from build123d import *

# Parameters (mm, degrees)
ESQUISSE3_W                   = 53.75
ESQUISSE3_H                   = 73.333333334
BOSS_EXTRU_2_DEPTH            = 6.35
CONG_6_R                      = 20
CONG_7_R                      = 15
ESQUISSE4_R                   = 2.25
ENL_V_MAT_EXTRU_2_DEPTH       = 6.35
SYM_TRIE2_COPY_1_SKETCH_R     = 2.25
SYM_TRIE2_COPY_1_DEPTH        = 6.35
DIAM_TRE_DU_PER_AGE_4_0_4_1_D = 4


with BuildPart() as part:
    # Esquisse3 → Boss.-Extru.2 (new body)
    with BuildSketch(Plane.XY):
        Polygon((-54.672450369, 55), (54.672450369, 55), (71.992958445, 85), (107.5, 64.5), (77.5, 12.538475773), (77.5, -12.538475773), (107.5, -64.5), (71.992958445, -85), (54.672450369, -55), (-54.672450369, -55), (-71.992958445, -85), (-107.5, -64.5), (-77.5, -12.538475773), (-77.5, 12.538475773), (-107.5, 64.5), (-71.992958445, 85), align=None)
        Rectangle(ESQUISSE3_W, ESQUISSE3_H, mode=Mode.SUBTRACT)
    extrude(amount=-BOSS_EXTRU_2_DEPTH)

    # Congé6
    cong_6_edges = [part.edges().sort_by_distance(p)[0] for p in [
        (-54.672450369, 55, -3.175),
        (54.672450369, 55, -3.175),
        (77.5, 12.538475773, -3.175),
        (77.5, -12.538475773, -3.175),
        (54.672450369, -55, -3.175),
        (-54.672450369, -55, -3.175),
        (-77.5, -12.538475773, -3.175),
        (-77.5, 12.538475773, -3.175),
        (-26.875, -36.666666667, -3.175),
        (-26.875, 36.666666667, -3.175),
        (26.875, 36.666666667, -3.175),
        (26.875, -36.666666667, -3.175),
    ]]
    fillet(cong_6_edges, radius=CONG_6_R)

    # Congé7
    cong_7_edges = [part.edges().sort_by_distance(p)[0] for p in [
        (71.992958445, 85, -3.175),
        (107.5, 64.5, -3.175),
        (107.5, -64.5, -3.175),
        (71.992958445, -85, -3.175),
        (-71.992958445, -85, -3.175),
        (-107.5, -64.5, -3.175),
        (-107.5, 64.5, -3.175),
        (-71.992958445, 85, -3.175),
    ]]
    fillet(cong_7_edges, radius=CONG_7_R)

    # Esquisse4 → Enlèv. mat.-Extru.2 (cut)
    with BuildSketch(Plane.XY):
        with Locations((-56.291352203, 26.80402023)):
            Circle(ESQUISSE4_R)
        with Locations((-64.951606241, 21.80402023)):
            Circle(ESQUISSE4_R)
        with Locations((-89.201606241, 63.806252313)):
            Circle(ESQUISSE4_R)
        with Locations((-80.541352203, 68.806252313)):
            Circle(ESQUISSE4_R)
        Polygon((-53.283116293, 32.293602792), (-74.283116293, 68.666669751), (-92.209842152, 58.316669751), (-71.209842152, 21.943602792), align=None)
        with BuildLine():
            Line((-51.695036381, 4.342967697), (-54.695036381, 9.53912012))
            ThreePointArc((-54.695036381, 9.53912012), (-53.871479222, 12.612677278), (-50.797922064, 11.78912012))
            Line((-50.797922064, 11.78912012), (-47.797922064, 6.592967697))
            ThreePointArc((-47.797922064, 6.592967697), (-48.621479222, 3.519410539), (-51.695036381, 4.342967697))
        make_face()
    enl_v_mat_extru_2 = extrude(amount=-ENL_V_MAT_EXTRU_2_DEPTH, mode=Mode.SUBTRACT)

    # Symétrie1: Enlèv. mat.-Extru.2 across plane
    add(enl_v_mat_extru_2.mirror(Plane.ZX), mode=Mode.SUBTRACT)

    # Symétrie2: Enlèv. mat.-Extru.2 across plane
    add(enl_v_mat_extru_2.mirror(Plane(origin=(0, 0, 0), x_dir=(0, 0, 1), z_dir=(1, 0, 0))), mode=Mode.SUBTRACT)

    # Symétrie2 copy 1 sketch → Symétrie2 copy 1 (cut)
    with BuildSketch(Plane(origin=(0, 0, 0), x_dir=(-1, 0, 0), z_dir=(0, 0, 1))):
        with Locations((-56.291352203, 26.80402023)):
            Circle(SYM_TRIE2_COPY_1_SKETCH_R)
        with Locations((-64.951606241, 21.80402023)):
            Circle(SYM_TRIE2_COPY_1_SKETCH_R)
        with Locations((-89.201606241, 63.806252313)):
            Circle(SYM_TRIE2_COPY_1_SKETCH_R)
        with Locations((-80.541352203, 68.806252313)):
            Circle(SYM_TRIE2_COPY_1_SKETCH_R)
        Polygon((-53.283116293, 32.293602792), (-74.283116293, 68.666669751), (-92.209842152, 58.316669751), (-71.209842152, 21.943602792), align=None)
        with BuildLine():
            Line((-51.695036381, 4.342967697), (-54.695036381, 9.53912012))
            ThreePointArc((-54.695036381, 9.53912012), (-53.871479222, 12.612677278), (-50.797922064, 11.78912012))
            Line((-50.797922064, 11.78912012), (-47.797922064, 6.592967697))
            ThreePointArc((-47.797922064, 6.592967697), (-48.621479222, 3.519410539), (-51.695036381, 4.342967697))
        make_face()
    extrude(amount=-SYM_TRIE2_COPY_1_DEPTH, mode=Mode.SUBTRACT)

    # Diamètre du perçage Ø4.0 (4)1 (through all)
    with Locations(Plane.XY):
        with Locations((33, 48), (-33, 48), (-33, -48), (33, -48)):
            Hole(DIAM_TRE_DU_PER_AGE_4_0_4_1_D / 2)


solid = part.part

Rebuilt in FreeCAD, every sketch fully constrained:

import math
import FreeCAD as App
import Part
import Sketcher

V = App.Vector
Q = App.Units.Quantity


def edges_at(feature, points):
    """Names of the edges that pass closest to the given points."""
    edges = feature.Shape.Edges
    near = lambda p: min(range(len(edges)), key=lambda i: edges[i].distToShape(Part.Vertex(*p))[0])
    return sorted({f"Edge{near(p) + 1}" for p in points})

doc = App.newDocument("Part")
body = doc.addObject("PartDesign::Body", "Body")

# Sketch on XY plane
sketch1 = body.newObject("Sketcher::SketchObject", "Sketch")
sketch1.AttachmentSupport = (doc.getObject("XY_Plane"), [""])
sketch1.MapMode = "FlatFace"
sketch1.addGeometry([
    Part.LineSegment(V(55, 55, 0), V(-55, 55, 0)),  # 0
    Part.LineSegment(V(-55, 55, 0), V(-72, 85, 0)),  # 1
    Part.LineSegment(V(-72, 85, 0), V(-108, 64, 0)),  # 2
    Part.LineSegment(V(-108, 64, 0), V(-78, 13, 0)),  # 3
    Part.LineSegment(V(-78, 13, 0), V(-78, -13, 0)),  # 4
    Part.LineSegment(V(-78, -13, 0), V(-108, -64, 0)),  # 5
    Part.LineSegment(V(-108, -64, 0), V(-72, -85, 0)),  # 6
    Part.LineSegment(V(-72, -85, 0), V(-55, -55, 0)),  # 7
    Part.LineSegment(V(-55, -55, 0), V(55, -55, 0)),  # 8
    Part.LineSegment(V(55, -55, 0), V(72, -85, 0)),  # 9
    Part.LineSegment(V(72, -85, 0), V(108, -64, 0)),  # 10
    Part.LineSegment(V(108, -64, 0), V(78, -13, 0)),  # 11
    Part.LineSegment(V(78, -13, 0), V(78, 13, 0)),  # 12
    Part.LineSegment(V(78, 13, 0), V(108, 64, 0)),  # 13
    Part.LineSegment(V(108, 64, 0), V(72, 85, 0)),  # 14
    Part.LineSegment(V(72, 85, 0), V(55, 55, 0)),  # 15
    Part.LineSegment(V(-27, -37, 0), V(-27, 37, 0)),  # 16
    Part.LineSegment(V(-27, 37, 0), V(27, 37, 0)),  # 17
    Part.LineSegment(V(27, 37, 0), V(27, -37, 0)),  # 18
    Part.LineSegment(V(27, -37, 0), V(-27, -37, 0)),  # 19
], False)
sketch1.addConstraint([
    Sketcher.Constraint("Coincident", 0, 2, 1, 1),
    Sketcher.Constraint("Coincident", 1, 2, 2, 1),
    Sketcher.Constraint("Coincident", 2, 2, 3, 1),
    Sketcher.Constraint("Coincident", 3, 2, 4, 1),
    Sketcher.Constraint("Coincident", 4, 2, 5, 1),
    Sketcher.Constraint("Coincident", 5, 2, 6, 1),
    Sketcher.Constraint("Coincident", 6, 2, 7, 1),
    Sketcher.Constraint("Coincident", 7, 2, 8, 1),
    Sketcher.Constraint("Coincident", 8, 2, 9, 1),
    Sketcher.Constraint("Coincident", 9, 2, 10, 1),
    Sketcher.Constraint("Coincident", 10, 2, 11, 1),
    Sketcher.Constraint("Coincident", 11, 2, 12, 1),
    Sketcher.Constraint("Coincident", 12, 2, 13, 1),
    Sketcher.Constraint("Coincident", 13, 2, 14, 1),
    Sketcher.Constraint("Coincident", 14, 2, 15, 1),
    Sketcher.Constraint("Coincident", 15, 2, 0, 1),
    Sketcher.Constraint("Coincident", 16, 2, 17, 1),
    Sketcher.Constraint("Coincident", 17, 2, 18, 1),
    Sketcher.Constraint("Coincident", 18, 2, 19, 1),
    Sketcher.Constraint("Coincident", 19, 2, 16, 1),
    Sketcher.Constraint("Horizontal", 0),
    Sketcher.Constraint("Vertical", 4),
    Sketcher.Constraint("Horizontal", 8),
    Sketcher.Constraint("Vertical", 12),
    Sketcher.Constraint("Vertical", 16),
    Sketcher.Constraint("Horizontal", 17),
    Sketcher.Constraint("Vertical", 18),
    Sketcher.Constraint("Horizontal", 19),
    Sketcher.Constraint("Symmetric", 0, 2, 8, 2, -1, 1),
    Sketcher.Constraint("Symmetric", 1, 2, 9, 2, -1, 1),
    Sketcher.Constraint("Symmetric", 2, 2, 10, 2, -1, 1),
    Sketcher.Constraint("Symmetric", 3, 2, 11, 2, -1, 1),
    Sketcher.Constraint("Symmetric", 5, 2, 13, 2, -1, 1),
    Sketcher.Constraint("Symmetric", 6, 2, 14, 2, -1, 1),
    Sketcher.Constraint("Symmetric", 16, 2, 18, 2, -1, 1),
    Sketcher.Constraint("Symmetric", 6, 2, 9, 2, -2),
    Sketcher.Constraint("Symmetric", 5, 2, 10, 2, -2),
    Sketcher.Constraint("Perpendicular", 1, 2),
    Sketcher.Constraint("Perpendicular", 2, 3),
    Sketcher.Constraint("Perpendicular", 5, 6),
    Sketcher.Constraint("Perpendicular", 6, 7),
    Sketcher.Constraint("Parallel", 7, 13),
    Sketcher.Constraint("Perpendicular", 14, 15),
    Sketcher.Constraint("Angle", 1, Q("120 deg")),
    Sketcher.Constraint("Distance", 2, 41.0),
    Sketcher.Constraint("Distance", 3, 60.0),
    Sketcher.Constraint("DistanceY", -1, 1, 0, 2, 55.0),
    Sketcher.Constraint("DistanceY", -1, 1, 1, 2, 85.0),
    Sketcher.Constraint("DistanceX", 4, 2, 10, 2, 185.0),
    Sketcher.Constraint("DistanceX", 17, 1, 17, 2, 53.75),
    Sketcher.Constraint("DistanceY", 16, 1, 16, 2, 73.333333),
])
pad1 = body.newObject("PartDesign::Pad", "Pad")
pad1.Profile = sketch1
pad1.Length = 6.35
pad1.Reversed = True
doc.recompute()

fillet = body.newObject("PartDesign::Fillet", "Fillet")
fillet.Base = (pad1, edges_at(pad1, [
    (-54.672, 55, -3.175),
    (54.672, 55, -3.175),
    (77.5, 12.538, -3.175),
    (77.5, -12.538, -3.175),
    (54.672, -55, -3.175),
    (-54.672, -55, -3.175),
    (-77.5, -12.538, -3.175),
    (-77.5, 12.538, -3.175),
    (-26.875, -36.667, -3.175),
    (-26.875, 36.667, -3.175),
    (26.875, 36.667, -3.175),
    (26.875, -36.667, -3.175),
]))
fillet.Radius = 20
doc.recompute()

fillet2 = body.newObject("PartDesign::Fillet", "Fillet001")
fillet2.Base = (fillet, edges_at(fillet, [
    (71.993, 85, -3.175),
    (107.5, 64.5, -3.175),
    (107.5, -64.5, -3.175),
    (71.993, -85, -3.175),
    (-71.993, -85, -3.175),
    (-107.5, -64.5, -3.175),
    (-107.5, 64.5, -3.175),
    (-71.993, 85, -3.175),
]))
fillet2.Radius = 15

# Sketch on XY plane
sketch2 = body.newObject("Sketcher::SketchObject", "Sketch001")
sketch2.AttachmentSupport = (doc.getObject("XY_Plane"), [""])
sketch2.MapMode = "FlatFace"
sketch2.addGeometry([
    Part.Circle(V(-56.3, 26.8, 0), V(0, 0, 1), 2.2),  # 0
    Part.Circle(V(-65, 21.8, 0), V(0, 0, 1), 2.2),  # 1
    Part.Circle(V(-89.2, 63.8, 0), V(0, 0, 1), 2.2),  # 2
    Part.Circle(V(-80.5, 68.8, 0), V(0, 0, 1), 2.2),  # 3
    Part.LineSegment(V(-53.3, 32.3, 0), V(-74.3, 68.7, 0)),  # 4
    Part.LineSegment(V(-74.3, 68.7, 0), V(-92.2, 58.3, 0)),  # 5
    Part.LineSegment(V(-92.2, 58.3, 0), V(-71.2, 21.9, 0)),  # 6
    Part.LineSegment(V(-71.2, 21.9, 0), V(-53.3, 32.3, 0)),  # 7
    Part.LineSegment(V(-54.7, 9.5, 0), V(-51.7, 4.3, 0)),  # 8
    Part.ArcOfCircle(Part.Circle(V(-49.7, 5.5, 0), V(0, 0, 1), 2.2), math.radians(-150), math.radians(30)),  # 9
    Part.LineSegment(V(-47.8, 6.6, 0), V(-50.8, 11.8, 0)),  # 10
    Part.ArcOfCircle(Part.Circle(V(-52.7, 10.7, 0), V(0, 0, 1), 2.2), math.radians(30), math.radians(210)),  # 11
], False)
sketch2.addConstraint([
    Sketcher.Constraint("Coincident", 4, 2, 5, 1),
    Sketcher.Constraint("Coincident", 5, 2, 6, 1),
    Sketcher.Constraint("Coincident", 6, 2, 7, 1),
    Sketcher.Constraint("Coincident", 7, 2, 4, 1),
    Sketcher.Constraint("Tangent", 8, 2, 9, 1),
    Sketcher.Constraint("Tangent", 9, 2, 10, 1),
    Sketcher.Constraint("Tangent", 10, 2, 11, 1),
    Sketcher.Constraint("Tangent", 11, 2, 8, 1),
    Sketcher.Constraint("Equal", 0, 1),
    Sketcher.Constraint("Equal", 1, 2),
    Sketcher.Constraint("Equal", 2, 3),
    Sketcher.Constraint("Equal", 3, 9),
    Sketcher.Constraint("Equal", 9, 11),
    Sketcher.Constraint("Perpendicular", 4, 5),
    Sketcher.Constraint("Perpendicular", 5, 6),
    Sketcher.Constraint("Perpendicular", 6, 7),
    Sketcher.Constraint("Perpendicular", 7, 8),
    Sketcher.Constraint("Diameter", 0, 4.5),
    Sketcher.Constraint("Angle", 4, Q("120 deg")),
    Sketcher.Constraint("Distance", 4, 42.0),
    Sketcher.Constraint("Distance", 8, 6.0),
    Sketcher.Constraint("DistanceY", 1, 3, 0, 3, 5.0),
    Sketcher.Constraint("DistanceY", 2, 3, 3, 3, 5.0),
    Sketcher.Constraint("Distance", 5, 20.7),
    Sketcher.Constraint("DistanceX", 2, 3, 1, 3, 24.25),
    Sketcher.Constraint("DistanceX", 3, 3, 0, 3, 24.25),
    Sketcher.Constraint("DistanceY", 11, 3, 1, 3, 11.1399),
    Sketcher.Constraint("DistanceY", -1, 1, 0, 3, 26.80402),
    Sketcher.Constraint("DistanceX", 9, 3, -1, 1, 49.746479),
    Sketcher.Constraint("DistanceY", -1, 1, 4, 2, 68.66667),
    Sketcher.Constraint("DistanceX", 2, 3, 4, 2, 14.91849),
    Sketcher.Constraint("DistanceX", 5, 2, 3, 3, 11.66849),
    Sketcher.Constraint("DistanceX", 1, 3, 8, 2, 13.25657),
    Sketcher.Constraint("DistanceY", -1, 1, 2, 3, 63.806252),
])
pocket1 = body.newObject("PartDesign::Pocket", "Pocket")
pocket1.Profile = sketch2
pocket1.Length = 6.35
doc.recompute()

mirrored = body.newObject("PartDesign::Mirrored", "Mirrored")
mirrored.Originals = [pocket1]
mirrored.MirrorPlane = (doc.getObject("XZ_Plane"), [""])
body.Tip = mirrored
doc.recompute()

mirrored2 = body.newObject("PartDesign::Mirrored", "Mirrored001")
mirrored2.Originals = [pocket1]
mirrored2.MirrorPlane = (doc.getObject("YZ_Plane"), [""])
body.Tip = mirrored2

# Sketch on XY plane
sketch3 = body.newObject("Sketcher::SketchObject", "Sketch002")
sketch3.AttachmentSupport = (doc.getObject("XY_Plane"), [""])
sketch3.MapMode = "FlatFace"
sketch3.addGeometry([
    Part.Circle(V(56.3, -26.8, 0), V(0, 0, 1), 2.2),  # 0
    Part.Circle(V(65, -21.8, 0), V(0, 0, 1), 2.2),  # 1
    Part.Circle(V(89.2, -63.8, 0), V(0, 0, 1), 2.2),  # 2
    Part.Circle(V(80.5, -68.8, 0), V(0, 0, 1), 2.2),  # 3
    Part.LineSegment(V(53.3, -32.3, 0), V(74.3, -68.7, 0)),  # 4
    Part.LineSegment(V(74.3, -68.7, 0), V(92.2, -58.3, 0)),  # 5
    Part.LineSegment(V(92.2, -58.3, 0), V(71.2, -21.9, 0)),  # 6
    Part.LineSegment(V(71.2, -21.9, 0), V(53.3, -32.3, 0)),  # 7
    Part.LineSegment(V(54.7, -9.5, 0), V(51.7, -4.3, 0)),  # 8
    Part.ArcOfCircle(Part.Circle(V(49.7, -5.5, 0), V(0, 0, 1), 2.2), math.radians(30), math.radians(210)),  # 9
    Part.LineSegment(V(47.8, -6.6, 0), V(50.8, -11.8, 0)),  # 10
    Part.ArcOfCircle(Part.Circle(V(52.7, -10.7, 0), V(0, 0, 1), 2.2), math.radians(-150), math.radians(30)),  # 11
], False)
sketch3.addConstraint([
    Sketcher.Constraint("Coincident", 4, 2, 5, 1),
    Sketcher.Constraint("Coincident", 5, 2, 6, 1),
    Sketcher.Constraint("Coincident", 6, 2, 7, 1),
    Sketcher.Constraint("Coincident", 7, 2, 4, 1),
    Sketcher.Constraint("Tangent", 8, 2, 9, 1),
    Sketcher.Constraint("Tangent", 9, 2, 10, 1),
    Sketcher.Constraint("Tangent", 10, 2, 11, 1),
    Sketcher.Constraint("Tangent", 11, 2, 8, 1),
    Sketcher.Constraint("Equal", 0, 1),
    Sketcher.Constraint("Equal", 1, 2),
    Sketcher.Constraint("Equal", 2, 3),
    Sketcher.Constraint("Equal", 3, 9),
    Sketcher.Constraint("Equal", 9, 11),
    Sketcher.Constraint("Perpendicular", 4, 5),
    Sketcher.Constraint("Perpendicular", 5, 6),
    Sketcher.Constraint("Perpendicular", 6, 7),
    Sketcher.Constraint("Perpendicular", 7, 8),
    Sketcher.Constraint("Diameter", 0, 4.5),
    Sketcher.Constraint("Angle", 4, Q("-60 deg")),
    Sketcher.Constraint("Distance", 4, 42.0),
    Sketcher.Constraint("Distance", 8, 6.0),
    Sketcher.Constraint("DistanceY", 0, 3, 1, 3, 5.0),
    Sketcher.Constraint("DistanceY", 3, 3, 2, 3, 5.0),
    Sketcher.Constraint("Distance", 5, 20.7),
    Sketcher.Constraint("DistanceX", 1, 3, 2, 3, 24.25),
    Sketcher.Constraint("DistanceX", 0, 3, 3, 3, 24.25),
    Sketcher.Constraint("DistanceY", 1, 3, 11, 3, 11.1399),
    Sketcher.Constraint("DistanceY", 0, 3, -1, 1, 26.80402),
    Sketcher.Constraint("DistanceX", -1, 1, 9, 3, 49.746479),
    Sketcher.Constraint("DistanceY", 4, 2, -1, 1, 68.66667),
    Sketcher.Constraint("DistanceX", 4, 2, 2, 3, 14.91849),
    Sketcher.Constraint("DistanceX", 3, 3, 5, 2, 11.66849),
    Sketcher.Constraint("DistanceX", 8, 2, 1, 3, 13.25657),
    Sketcher.Constraint("DistanceY", 2, 3, -1, 1, 63.806252),
])
pocket2 = body.newObject("PartDesign::Pocket", "Pocket001")
pocket2.Profile = sketch3
pocket2.Length = 6.35

# Sketch on XY plane
sketch4 = body.newObject("Sketcher::SketchObject", "Sketch003")
sketch4.AttachmentSupport = (doc.getObject("XY_Plane"), [""])
sketch4.MapMode = "FlatFace"
sketch4.addGeometry([
    Part.Circle(V(33, 48, 0), V(0, 0, 1), 2),
    Part.Circle(V(-33, 48, 0), V(0, 0, 1), 2),
    Part.Circle(V(-33, -48, 0), V(0, 0, 1), 2),
    Part.Circle(V(33, -48, 0), V(0, 0, 1), 2),
], False)
sketch4.addConstraint([
    Sketcher.Constraint("Equal", 0, 1),
    Sketcher.Constraint("Equal", 1, 2),
    Sketcher.Constraint("Equal", 2, 3),
    Sketcher.Constraint("Symmetric", 0, 3, 2, 3, -1, 1),
    Sketcher.Constraint("Symmetric", 1, 3, 3, 3, -1, 1),
    Sketcher.Constraint("Symmetric", 0, 3, 1, 3, -2),
    Sketcher.Constraint("Diameter", 0, 4.0),
    Sketcher.Constraint("DistanceX", -1, 1, 0, 3, 33.0),
    Sketcher.Constraint("DistanceY", -1, 1, 0, 3, 48.0),
])
doc.recompute()
hole = body.newObject("PartDesign::Hole", "Hole")
hole.Profile = sketch4
hole.ThreadType = "None"
hole.Diameter = 4
hole.DepthType = "ThroughAll"

doc.recompute()
